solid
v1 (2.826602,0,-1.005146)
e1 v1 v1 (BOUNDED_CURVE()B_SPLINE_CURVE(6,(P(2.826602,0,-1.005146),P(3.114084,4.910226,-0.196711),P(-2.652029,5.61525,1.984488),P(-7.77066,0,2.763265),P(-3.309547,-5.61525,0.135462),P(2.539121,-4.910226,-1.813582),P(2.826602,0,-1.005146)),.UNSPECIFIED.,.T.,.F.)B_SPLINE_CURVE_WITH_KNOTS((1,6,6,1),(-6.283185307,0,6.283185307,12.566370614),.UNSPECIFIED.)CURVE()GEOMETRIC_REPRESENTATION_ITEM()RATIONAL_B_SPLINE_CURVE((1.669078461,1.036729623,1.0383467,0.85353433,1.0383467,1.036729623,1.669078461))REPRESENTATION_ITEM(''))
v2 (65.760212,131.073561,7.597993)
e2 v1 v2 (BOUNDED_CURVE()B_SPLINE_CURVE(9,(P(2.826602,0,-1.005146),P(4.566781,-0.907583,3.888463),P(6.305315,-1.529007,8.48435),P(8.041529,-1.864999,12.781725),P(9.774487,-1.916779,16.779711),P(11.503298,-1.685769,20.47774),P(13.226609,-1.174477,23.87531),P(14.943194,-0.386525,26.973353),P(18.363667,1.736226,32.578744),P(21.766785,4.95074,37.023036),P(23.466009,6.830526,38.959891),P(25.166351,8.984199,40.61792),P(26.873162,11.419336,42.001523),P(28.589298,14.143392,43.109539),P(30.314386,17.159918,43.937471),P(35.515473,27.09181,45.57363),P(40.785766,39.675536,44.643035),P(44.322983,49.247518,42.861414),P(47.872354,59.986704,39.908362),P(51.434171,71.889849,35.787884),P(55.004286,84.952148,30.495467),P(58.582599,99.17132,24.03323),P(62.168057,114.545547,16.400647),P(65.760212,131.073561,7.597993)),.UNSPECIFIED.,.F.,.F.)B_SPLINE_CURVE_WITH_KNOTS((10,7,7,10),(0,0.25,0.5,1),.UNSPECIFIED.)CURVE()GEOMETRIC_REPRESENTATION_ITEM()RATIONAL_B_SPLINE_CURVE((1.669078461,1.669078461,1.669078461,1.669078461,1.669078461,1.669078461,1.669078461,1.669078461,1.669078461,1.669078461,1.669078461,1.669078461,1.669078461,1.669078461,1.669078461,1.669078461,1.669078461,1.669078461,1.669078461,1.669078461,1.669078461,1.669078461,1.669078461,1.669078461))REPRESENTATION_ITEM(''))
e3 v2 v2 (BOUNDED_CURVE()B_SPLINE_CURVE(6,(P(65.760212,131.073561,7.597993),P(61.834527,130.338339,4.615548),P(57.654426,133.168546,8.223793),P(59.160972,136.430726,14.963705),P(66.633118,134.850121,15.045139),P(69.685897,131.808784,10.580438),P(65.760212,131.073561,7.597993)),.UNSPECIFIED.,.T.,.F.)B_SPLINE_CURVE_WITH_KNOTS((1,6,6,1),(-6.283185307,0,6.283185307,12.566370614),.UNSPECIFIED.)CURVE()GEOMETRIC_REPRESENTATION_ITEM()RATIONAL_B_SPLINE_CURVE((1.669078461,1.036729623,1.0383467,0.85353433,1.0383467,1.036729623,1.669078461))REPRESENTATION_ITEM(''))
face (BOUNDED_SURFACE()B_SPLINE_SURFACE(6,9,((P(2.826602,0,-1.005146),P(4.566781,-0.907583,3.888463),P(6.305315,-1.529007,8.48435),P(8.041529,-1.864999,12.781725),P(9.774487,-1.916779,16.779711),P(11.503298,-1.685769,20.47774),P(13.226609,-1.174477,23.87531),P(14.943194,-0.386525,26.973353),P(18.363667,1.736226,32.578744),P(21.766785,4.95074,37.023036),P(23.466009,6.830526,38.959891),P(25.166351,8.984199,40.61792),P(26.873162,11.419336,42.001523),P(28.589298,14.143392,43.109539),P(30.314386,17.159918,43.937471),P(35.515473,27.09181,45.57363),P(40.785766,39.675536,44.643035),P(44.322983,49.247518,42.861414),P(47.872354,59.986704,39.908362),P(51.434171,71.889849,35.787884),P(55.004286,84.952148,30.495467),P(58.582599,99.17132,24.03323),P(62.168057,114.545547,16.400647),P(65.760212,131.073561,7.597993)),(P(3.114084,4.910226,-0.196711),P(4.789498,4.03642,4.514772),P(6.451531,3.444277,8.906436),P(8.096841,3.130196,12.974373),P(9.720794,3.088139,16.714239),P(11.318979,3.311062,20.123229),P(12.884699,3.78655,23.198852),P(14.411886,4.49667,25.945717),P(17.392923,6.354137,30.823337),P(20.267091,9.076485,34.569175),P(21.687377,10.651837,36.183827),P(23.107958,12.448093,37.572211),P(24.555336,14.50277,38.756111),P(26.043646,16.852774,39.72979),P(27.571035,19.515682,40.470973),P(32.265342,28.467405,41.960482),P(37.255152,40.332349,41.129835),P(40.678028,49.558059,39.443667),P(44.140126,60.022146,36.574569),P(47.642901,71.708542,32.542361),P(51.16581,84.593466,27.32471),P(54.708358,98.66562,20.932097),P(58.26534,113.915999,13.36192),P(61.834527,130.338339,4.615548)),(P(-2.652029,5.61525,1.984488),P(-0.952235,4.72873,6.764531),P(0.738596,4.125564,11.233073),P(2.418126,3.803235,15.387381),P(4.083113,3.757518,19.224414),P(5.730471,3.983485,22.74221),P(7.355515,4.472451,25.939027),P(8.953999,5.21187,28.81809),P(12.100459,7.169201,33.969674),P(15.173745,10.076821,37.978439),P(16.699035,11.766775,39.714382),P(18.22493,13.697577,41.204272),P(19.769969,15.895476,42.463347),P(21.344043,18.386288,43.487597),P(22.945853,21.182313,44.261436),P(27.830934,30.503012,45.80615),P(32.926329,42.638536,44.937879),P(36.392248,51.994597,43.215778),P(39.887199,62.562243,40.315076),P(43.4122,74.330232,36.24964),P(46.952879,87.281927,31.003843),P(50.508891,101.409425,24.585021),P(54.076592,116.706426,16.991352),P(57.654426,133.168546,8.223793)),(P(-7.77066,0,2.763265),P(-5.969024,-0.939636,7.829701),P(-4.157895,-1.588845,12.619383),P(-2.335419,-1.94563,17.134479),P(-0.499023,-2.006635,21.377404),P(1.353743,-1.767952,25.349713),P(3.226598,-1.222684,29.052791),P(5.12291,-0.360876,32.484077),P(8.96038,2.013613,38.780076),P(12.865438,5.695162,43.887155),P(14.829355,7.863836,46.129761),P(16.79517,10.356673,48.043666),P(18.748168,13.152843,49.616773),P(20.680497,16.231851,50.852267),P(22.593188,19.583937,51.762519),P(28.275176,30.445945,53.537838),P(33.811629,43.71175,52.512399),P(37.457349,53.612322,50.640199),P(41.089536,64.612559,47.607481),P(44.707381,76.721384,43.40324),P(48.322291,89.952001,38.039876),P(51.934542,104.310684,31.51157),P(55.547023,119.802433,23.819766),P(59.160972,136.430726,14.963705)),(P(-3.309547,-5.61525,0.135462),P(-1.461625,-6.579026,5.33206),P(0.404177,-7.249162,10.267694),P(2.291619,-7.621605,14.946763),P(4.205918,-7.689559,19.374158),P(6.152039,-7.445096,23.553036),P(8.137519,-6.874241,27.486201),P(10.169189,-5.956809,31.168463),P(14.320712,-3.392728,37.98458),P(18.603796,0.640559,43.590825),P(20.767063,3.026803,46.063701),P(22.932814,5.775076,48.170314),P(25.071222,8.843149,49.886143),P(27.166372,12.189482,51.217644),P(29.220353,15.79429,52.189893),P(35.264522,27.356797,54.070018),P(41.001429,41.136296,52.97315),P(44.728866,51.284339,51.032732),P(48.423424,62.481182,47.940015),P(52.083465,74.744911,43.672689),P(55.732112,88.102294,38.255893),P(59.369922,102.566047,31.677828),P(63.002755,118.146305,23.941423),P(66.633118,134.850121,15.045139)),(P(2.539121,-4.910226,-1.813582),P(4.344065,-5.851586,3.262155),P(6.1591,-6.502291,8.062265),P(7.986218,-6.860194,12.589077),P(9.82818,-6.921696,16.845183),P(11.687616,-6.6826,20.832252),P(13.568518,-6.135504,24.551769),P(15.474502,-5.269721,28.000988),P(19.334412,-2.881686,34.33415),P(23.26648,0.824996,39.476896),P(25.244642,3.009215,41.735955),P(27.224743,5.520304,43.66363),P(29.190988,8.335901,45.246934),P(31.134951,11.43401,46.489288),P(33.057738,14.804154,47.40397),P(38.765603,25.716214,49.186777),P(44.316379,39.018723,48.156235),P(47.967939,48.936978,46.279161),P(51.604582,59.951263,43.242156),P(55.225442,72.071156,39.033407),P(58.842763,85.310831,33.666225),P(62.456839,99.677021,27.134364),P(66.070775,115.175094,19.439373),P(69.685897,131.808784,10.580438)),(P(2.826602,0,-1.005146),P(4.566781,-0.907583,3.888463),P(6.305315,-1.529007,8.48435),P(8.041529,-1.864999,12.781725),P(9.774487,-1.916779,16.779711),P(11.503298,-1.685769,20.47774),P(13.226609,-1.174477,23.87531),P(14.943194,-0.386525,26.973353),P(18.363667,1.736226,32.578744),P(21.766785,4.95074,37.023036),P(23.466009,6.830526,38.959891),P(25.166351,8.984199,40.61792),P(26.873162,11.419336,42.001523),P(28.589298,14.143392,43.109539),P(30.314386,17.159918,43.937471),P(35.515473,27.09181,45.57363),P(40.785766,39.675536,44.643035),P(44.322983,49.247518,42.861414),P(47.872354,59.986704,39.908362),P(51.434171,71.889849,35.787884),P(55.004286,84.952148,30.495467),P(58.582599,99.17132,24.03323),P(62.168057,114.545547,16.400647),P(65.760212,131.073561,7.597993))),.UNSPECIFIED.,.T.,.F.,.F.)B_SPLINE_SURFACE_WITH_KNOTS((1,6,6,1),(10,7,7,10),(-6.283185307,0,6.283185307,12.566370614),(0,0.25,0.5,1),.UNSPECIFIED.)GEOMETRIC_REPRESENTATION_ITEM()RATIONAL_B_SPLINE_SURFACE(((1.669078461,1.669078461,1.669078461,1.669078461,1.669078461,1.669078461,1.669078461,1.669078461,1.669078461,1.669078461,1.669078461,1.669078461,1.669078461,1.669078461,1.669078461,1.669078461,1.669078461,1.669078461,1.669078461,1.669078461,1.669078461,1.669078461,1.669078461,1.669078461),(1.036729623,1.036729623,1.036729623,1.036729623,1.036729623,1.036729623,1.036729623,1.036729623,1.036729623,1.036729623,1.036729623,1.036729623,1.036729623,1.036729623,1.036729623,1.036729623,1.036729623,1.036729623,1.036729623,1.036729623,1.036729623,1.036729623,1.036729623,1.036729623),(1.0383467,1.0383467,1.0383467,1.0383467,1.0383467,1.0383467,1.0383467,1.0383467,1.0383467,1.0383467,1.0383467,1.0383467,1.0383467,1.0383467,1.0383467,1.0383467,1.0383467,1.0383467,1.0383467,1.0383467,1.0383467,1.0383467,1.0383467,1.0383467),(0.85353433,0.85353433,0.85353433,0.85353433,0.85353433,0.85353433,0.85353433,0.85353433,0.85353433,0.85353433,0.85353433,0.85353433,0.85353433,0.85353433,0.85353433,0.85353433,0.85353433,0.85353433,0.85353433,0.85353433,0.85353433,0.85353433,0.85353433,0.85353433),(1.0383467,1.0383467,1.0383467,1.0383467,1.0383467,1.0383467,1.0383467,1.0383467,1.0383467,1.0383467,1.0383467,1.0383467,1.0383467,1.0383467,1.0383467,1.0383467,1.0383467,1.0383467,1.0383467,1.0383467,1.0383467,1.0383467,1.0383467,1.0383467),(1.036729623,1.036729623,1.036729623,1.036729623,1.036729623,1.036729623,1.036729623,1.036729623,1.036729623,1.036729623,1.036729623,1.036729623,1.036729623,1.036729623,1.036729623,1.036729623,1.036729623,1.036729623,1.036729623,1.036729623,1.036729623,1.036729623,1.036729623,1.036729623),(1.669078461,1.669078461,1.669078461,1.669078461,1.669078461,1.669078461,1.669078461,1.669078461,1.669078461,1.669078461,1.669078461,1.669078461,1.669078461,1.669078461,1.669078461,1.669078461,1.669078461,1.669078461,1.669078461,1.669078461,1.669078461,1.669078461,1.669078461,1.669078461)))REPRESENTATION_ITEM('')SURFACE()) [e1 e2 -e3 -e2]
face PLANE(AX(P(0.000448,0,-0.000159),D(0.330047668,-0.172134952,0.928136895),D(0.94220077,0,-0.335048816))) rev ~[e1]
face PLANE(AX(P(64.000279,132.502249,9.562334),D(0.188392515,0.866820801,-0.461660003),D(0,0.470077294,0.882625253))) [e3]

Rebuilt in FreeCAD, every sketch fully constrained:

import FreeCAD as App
import Part
import Sketcher
Q = App.Units.Quantity

doc = App.newDocument("Part")
params = doc.addObject("Spreadsheet::Sheet", "Params")
for row, (alias, value) in enumerate([
    ("sketch1_diameter", "6 mm"),
], start=1):
    params.set(f"A{row}", alias)
    params.set(f"B{row}", "=" + value)
    params.setAlias(f"B{row}", alias)

body = doc.addObject("PartDesign::Body", "Body")

sketch1 = doc.addObject("Sketcher::SketchObject", "Sketch")
body.addObject(sketch1)
sketch1.Placement = App.Placement(App.Vector(0, 0, 0), App.Rotation(App.Vector(0.94220077, 0, -0.335048816), App.Vector(0.057673612, 0.985073378, 0.162185684), App.Vector(0.330047668, -0.172134952, 0.928136895), "ZXY"))
sketch1.addGeometry(Part.Circle(App.Vector(0, 0, 0), App.Vector(0, 0, 1), 3), False)
sketch1.addConstraint([
    Sketcher.Constraint("Coincident", 0, 3, -1, 1),
    Sketcher.Constraint("Diameter", 0, Q("6 mm")),
])
sketch1.setExpression("Constraints[1]", "Params.sketch1_diameter")

sketch2 = doc.addObject("Sketcher::SketchObject", "Sketch001")
body.addObject(sketch2)
sketch2.Placement = App.Placement(App.Vector(0, 0, 0), App.Rotation(App.Vector(0.411354026, 0.911475653, 0), App.Vector(0.338815383, -0.152909265, 0.928344168), App.Vector(0.846163106, -0.38187811, -0.371721814), "ZXY"))
sketch2.addGeometry(Part.BSplineCurve([App.Vector(0, 0, 0), App.Vector(-2.024273, 95.777774, 0), App.Vector(147.099438, 10.300754, 0)], [3, 3], [0, 1], False, 2, [1, 1, 1], False), False)
sketch2.addConstraint(Sketcher.Constraint("Block", 0))
doc.recompute()

additivepipe = doc.addObject("PartDesign::AdditivePipe", "AdditivePipe")
body.addObject(additivepipe)
additivepipe.Profile = sketch1
additivepipe.Spine = (sketch2, ["Edge1"])

doc.recompute()
